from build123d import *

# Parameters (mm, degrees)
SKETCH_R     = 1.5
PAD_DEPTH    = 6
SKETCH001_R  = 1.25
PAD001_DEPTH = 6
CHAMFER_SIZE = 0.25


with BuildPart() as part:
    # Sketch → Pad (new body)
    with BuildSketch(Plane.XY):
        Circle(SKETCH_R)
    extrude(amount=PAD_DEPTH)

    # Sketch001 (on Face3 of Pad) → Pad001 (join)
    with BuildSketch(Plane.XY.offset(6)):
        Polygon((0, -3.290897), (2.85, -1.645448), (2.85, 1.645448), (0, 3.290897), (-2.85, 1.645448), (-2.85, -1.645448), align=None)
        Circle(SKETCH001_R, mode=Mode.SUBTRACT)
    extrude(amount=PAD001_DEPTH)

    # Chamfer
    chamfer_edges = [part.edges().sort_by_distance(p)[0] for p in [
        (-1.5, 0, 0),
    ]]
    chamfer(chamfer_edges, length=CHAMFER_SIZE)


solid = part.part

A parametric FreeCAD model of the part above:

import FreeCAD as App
import Part
import Sketcher

V = App.Vector
Q = App.Units.Quantity


def edges_at(feature, points):
    """Names of the edges that pass closest to the given points."""
    edges = feature.Shape.Edges
    near = lambda p: min(range(len(edges)), key=lambda i: edges[i].distToShape(Part.Vertex(*p))[0])
    return sorted({f"Edge{near(p) + 1}" for p in points})

doc = App.newDocument("Part")
params = doc.addObject("Spreadsheet::Sheet", "Params")
for row, (alias, value) in enumerate([
    ("sketch1_diameter", "3 mm"),
    ("pad1_length", "6 mm"),
    ("sketch2_diameter", "2.5 mm"),
    ("pad2_length", "6 mm"),
    ("chamfer_size", "0.25 mm"),
], start=1):
    params.set(f"A{row}", alias)
    params.set(f"B{row}", "=" + value)
    params.setAlias(f"B{row}", alias)

body = doc.addObject("PartDesign::Body", "Body")

# Sketch on XY plane
sketch1 = body.newObject("Sketcher::SketchObject", "Sketch")
sketch1.AttachmentSupport = (doc.getObject("XY_Plane"), [""])
sketch1.MapMode = "FlatFace"
sketch1.addGeometry(Part.Circle(V(0, 0, 0), V(0, 0, 1), 1.5), False)
sketch1.addConstraint(Sketcher.Constraint("Coincident", 0, 3, -1, 1))
sketch1.addConstraint(Sketcher.Constraint("Diameter", 0, Q("3 mm")))
sketch1.setExpression("Constraints[1]", "Params.sketch1_diameter")
pad1 = body.newObject("PartDesign::Pad", "Pad")
pad1.Profile = sketch1
pad1.setExpression("Length", "Params.pad1_length")

# Sketch on XY plane
sketch2 = body.newObject("Sketcher::SketchObject", "Sketch001")
sketch2.AttachmentSupport = (doc.getObject("XY_Plane"), [""])
sketch2.MapMode = "FlatFace"
sketch2.AttachmentOffset = App.Placement(V(0, 0, 6), App.Rotation())
sketch2.addGeometry(Part.LineSegment(V(0, -3.3, 0), V(2.9, -1.6, 0)), False)
sketch2.addGeometry(Part.LineSegment(V(2.9, -1.6, 0), V(2.9, 1.6, 0)), False)
sketch2.addGeometry(Part.LineSegment(V(2.9, 1.6, 0), V(0, 3.3, 0)), False)
sketch2.addGeometry(Part.LineSegment(V(0, 3.3, 0), V(-2.9, 1.6, 0)), False)
sketch2.addGeometry(Part.LineSegment(V(-2.9, 1.6, 0), V(-2.9, -1.6, 0)), False)
sketch2.addGeometry(Part.LineSegment(V(-2.9, -1.6, 0), V(0, -3.3, 0)), False)
sketch2.addGeometry(Part.Circle(V(0, 0, 0), V(0, 0, 1), 1.2), False)
sketch2.addConstraint(Sketcher.Constraint("Coincident", 0, 2, 1, 1))
sketch2.addConstraint(Sketcher.Constraint("Coincident", 1, 2, 2, 1))
sketch2.addConstraint(Sketcher.Constraint("Coincident", 2, 2, 3, 1))
sketch2.addConstraint(Sketcher.Constraint("Coincident", 3, 2, 4, 1))
sketch2.addConstraint(Sketcher.Constraint("Coincident", 4, 2, 5, 1))
sketch2.addConstraint(Sketcher.Constraint("Coincident", 5, 2, 0, 1))
sketch2.addConstraint(Sketcher.Constraint("Vertical", 1))
sketch2.addConstraint(Sketcher.Constraint("Vertical", 4))
sketch2.addConstraint(Sketcher.Constraint("Coincident", 6, 3, -1, 1))
sketch2.addConstraint(Sketcher.Constraint("Symmetric", 0, 2, 3, 2, -1, 1))
sketch2.addConstraint(Sketcher.Constraint("Symmetric", 2, 2, 5, 2, -1, 1))
sketch2.addConstraint(Sketcher.Constraint("PointOnObject", 2, 2, -2))
sketch2.addConstraint(Sketcher.Constraint("Parallel", 2, 5))
sketch2.addConstraint(Sketcher.Constraint("Horizontal", 1, 2, 3, 2))
sketch2.addConstraint(Sketcher.Constraint("Diameter", 6, Q("2.5 mm")))
sketch2.addConstraint(Sketcher.Constraint("Angle", 0, Q("30.000011 deg")))
sketch2.addConstraint(Sketcher.Constraint("DistanceX", 3, 2, 1, 2, Q("5.7 mm")))
sketch2.addConstraint(Sketcher.Constraint("DistanceY", 1, 1, 1, 2, Q("3.290896 mm")))
sketch2.setExpression("Constraints[14]", "Params.sketch2_diameter")
pad2 = body.newObject("PartDesign::Pad", "Pad001")
pad2.Profile = sketch2
pad2.setExpression("Length", "Params.pad2_length")
doc.recompute()

chamfer = body.newObject("PartDesign::Chamfer", "Chamfer")
chamfer.Base = (pad2, edges_at(pad2, [(-1.5, 0, 0)]))
chamfer.setExpression("Size", "Params.chamfer_size")

doc.recompute()
